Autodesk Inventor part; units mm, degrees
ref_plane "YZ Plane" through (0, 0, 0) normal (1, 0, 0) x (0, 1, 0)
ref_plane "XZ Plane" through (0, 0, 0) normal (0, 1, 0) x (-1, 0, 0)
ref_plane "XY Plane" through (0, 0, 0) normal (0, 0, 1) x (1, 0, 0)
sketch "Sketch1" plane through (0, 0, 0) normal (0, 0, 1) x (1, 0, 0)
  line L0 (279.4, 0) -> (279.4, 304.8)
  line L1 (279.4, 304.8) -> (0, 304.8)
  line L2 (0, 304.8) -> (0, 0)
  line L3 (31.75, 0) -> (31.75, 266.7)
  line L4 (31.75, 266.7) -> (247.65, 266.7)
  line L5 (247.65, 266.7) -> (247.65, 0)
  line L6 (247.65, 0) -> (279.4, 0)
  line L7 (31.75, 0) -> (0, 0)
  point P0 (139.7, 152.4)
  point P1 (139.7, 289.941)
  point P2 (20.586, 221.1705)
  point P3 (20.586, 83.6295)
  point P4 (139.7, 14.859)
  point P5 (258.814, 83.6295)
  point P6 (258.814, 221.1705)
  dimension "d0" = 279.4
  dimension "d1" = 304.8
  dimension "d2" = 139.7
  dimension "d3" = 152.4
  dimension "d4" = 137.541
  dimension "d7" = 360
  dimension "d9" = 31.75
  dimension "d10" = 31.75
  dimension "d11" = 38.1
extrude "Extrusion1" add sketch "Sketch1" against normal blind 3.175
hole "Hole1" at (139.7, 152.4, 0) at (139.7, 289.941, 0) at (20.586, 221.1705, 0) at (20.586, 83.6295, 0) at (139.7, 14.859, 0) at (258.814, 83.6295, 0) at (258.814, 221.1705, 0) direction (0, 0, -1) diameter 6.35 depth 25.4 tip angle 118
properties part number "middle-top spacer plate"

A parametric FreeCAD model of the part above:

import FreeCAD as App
import Part
import Sketcher
from FreeCAD import Vector
Q = App.Units.Quantity

doc = App.newDocument("Part")
body = doc.addObject("PartDesign::Body", "Body")

# Sketch on XY plane
sketch1 = body.newObject("Sketcher::SketchObject", "Sketch")
sketch1.AttachmentSupport = (doc.getObject("XY_Plane"), [""])
sketch1.MapMode = "FlatFace"
sketch1.addGeometry(Part.LineSegment(Vector(248, 0, 0), Vector(279, 0, 0)), False)
sketch1.addGeometry(Part.LineSegment(Vector(279, 0, 0), Vector(279, 305, 0)), False)
sketch1.addGeometry(Part.LineSegment(Vector(279, 305, 0), Vector(0, 305, 0)), False)
sketch1.addGeometry(Part.LineSegment(Vector(0, 305, 0), Vector(0, 0, 0)), False)
sketch1.addGeometry(Part.LineSegment(Vector(0, 0, 0), Vector(32, 0, 0)), False)
sketch1.addGeometry(Part.LineSegment(Vector(32, 0, 0), Vector(32, 267, 0)), False)
sketch1.addGeometry(Part.LineSegment(Vector(32, 267, 0), Vector(248, 267, 0)), False)
sketch1.addGeometry(Part.LineSegment(Vector(248, 267, 0), Vector(248, 0, 0)), False)
sketch1.addConstraint(Sketcher.Constraint("Coincident", 0, 2, 1, 1))
sketch1.addConstraint(Sketcher.Constraint("Coincident", 1, 2, 2, 1))
sketch1.addConstraint(Sketcher.Constraint("Coincident", 2, 2, 3, 1))
sketch1.addConstraint(Sketcher.Constraint("Coincident", 3, 2, 4, 1))
sketch1.addConstraint(Sketcher.Constraint("Coincident", 4, 2, 5, 1))
sketch1.addConstraint(Sketcher.Constraint("Coincident", 5, 2, 6, 1))
sketch1.addConstraint(Sketcher.Constraint("Coincident", 6, 2, 7, 1))
sketch1.addConstraint(Sketcher.Constraint("Coincident", 7, 2, 0, 1))
sketch1.addConstraint(Sketcher.Constraint("Horizontal", 0))
sketch1.addConstraint(Sketcher.Constraint("Vertical", 1))
sketch1.addConstraint(Sketcher.Constraint("Horizontal", 2))
sketch1.addConstraint(Sketcher.Constraint("Vertical", 3))
sketch1.addConstraint(Sketcher.Constraint("Horizontal", 4))
sketch1.addConstraint(Sketcher.Constraint("Vertical", 5))
sketch1.addConstraint(Sketcher.Constraint("Horizontal", 6))
sketch1.addConstraint(Sketcher.Constraint("Vertical", 7))
sketch1.addConstraint(Sketcher.Constraint("Coincident", 3, 2, -1, 1))
sketch1.addConstraint(Sketcher.Constraint("PointOnObject", 0, 2, -1))
sketch1.addConstraint(Sketcher.Constraint("Equal", 0, 4))
sketch1.addConstraint(Sketcher.Constraint("DistanceX", 2, 2, 2, 1, Q("11 in")))
sketch1.addConstraint(Sketcher.Constraint("DistanceY", 1, 1, 1, 2, Q("12 in")))
sketch1.addConstraint(Sketcher.Constraint("DistanceX", 0, 1, 0, 2, Q("1.25 in")))
sketch1.addConstraint(Sketcher.Constraint("DistanceY", 5, 2, 2, 2, Q("1.5 in")))
pad1 = body.newObject("PartDesign::Pad", "Pad")
pad1.Profile = sketch1
pad1.Length = Q("0.125 in")
pad1.Reversed = True

# Sketch on XY plane
sketch2 = body.newObject("Sketcher::SketchObject", "Sketch001")
sketch2.AttachmentSupport = (doc.getObject("XY_Plane"), [""])
sketch2.MapMode = "FlatFace"
sketch2.addGeometry(Part.Circle(Vector(139.7, 152.4, 0), Vector(0, 0, 1), 3.2), False)
sketch2.addGeometry(Part.Circle(Vector(139.7, 289.9, 0), Vector(0, 0, 1), 3.2), False)
sketch2.addGeometry(Part.Circle(Vector(20.6, 221.2, 0), Vector(0, 0, 1), 3.2), False)
sketch2.addGeometry(Part.Circle(Vector(20.6, 83.6, 0), Vector(0, 0, 1), 3.2), False)
sketch2.addGeometry(Part.Circle(Vector(139.7, 14.9, 0), Vector(0, 0, 1), 3.2), False)
sketch2.addGeometry(Part.Circle(Vector(258.8, 83.6, 0), Vector(0, 0, 1), 3.2), False)
sketch2.addGeometry(Part.Circle(Vector(258.8, 221.2, 0), Vector(0, 0, 1), 3.2), False)
sketch2.addConstraint(Sketcher.Constraint("Equal", 0, 1))
sketch2.addConstraint(Sketcher.Constraint("Equal", 1, 2))
sketch2.addConstraint(Sketcher.Constraint("Equal", 2, 3))
sketch2.addConstraint(Sketcher.Constraint("Equal", 3, 4))
sketch2.addConstraint(Sketcher.Constraint("Equal", 4, 5))
sketch2.addConstraint(Sketcher.Constraint("Equal", 5, 6))
sketch2.addConstraint(Sketcher.Constraint("Horizontal", 3, 3, 5, 3))
sketch2.addConstraint(Sketcher.Constraint("Horizontal", 2, 3, 6, 3))
sketch2.addConstraint(Sketcher.Constraint("Vertical", 0, 3, 1, 3))
sketch2.addConstraint(Sketcher.Constraint("Vertical", 2, 3, 3, 3))
sketch2.addConstraint(Sketcher.Constraint("Vertical", 1, 3, 4, 3))
sketch2.addConstraint(Sketcher.Constraint("Vertical", 5, 3, 6, 3))
sketch2.addConstraint(Sketcher.Constraint("Diameter", 0, Q("0.25 in")))
sketch2.addConstraint(Sketcher.Constraint("DistanceY", -1, 1, 0, 3, Q("6 in")))
sketch2.addConstraint(Sketcher.Constraint("DistanceX", -1, 1, 0, 3, Q("5.5 in")))
sketch2.addConstraint(Sketcher.Constraint("DistanceY", 4, 3, 1, 3, Q("10.83 in")))
sketch2.addConstraint(Sketcher.Constraint("DistanceY", -1, 1, 1, 3, Q("11.415 in")))
sketch2.addConstraint(Sketcher.Constraint("DistanceY", 3, 3, 2, 3, Q("5.415 in")))
sketch2.addConstraint(Sketcher.Constraint("DistanceY", -1, 1, 2, 3, Q("8.7075 in")))
sketch2.addConstraint(Sketcher.Constraint("DistanceX", -1, 1, 2, 3, 20.586))
sketch2.addConstraint(Sketcher.Constraint("DistanceX", -1, 1, 5, 3, 258.814))
doc.recompute()
hole = body.newObject("PartDesign::Hole", "Hole")
hole.Profile = sketch2
hole.ThreadType = "None"
hole.Diameter = Q("0.25 in")
hole.DepthType = "Dimension"
hole.Depth = Q("1 in")
hole.DrillPoint = "Angled"
hole.DrillPointAngle = 118

doc.recompute()
